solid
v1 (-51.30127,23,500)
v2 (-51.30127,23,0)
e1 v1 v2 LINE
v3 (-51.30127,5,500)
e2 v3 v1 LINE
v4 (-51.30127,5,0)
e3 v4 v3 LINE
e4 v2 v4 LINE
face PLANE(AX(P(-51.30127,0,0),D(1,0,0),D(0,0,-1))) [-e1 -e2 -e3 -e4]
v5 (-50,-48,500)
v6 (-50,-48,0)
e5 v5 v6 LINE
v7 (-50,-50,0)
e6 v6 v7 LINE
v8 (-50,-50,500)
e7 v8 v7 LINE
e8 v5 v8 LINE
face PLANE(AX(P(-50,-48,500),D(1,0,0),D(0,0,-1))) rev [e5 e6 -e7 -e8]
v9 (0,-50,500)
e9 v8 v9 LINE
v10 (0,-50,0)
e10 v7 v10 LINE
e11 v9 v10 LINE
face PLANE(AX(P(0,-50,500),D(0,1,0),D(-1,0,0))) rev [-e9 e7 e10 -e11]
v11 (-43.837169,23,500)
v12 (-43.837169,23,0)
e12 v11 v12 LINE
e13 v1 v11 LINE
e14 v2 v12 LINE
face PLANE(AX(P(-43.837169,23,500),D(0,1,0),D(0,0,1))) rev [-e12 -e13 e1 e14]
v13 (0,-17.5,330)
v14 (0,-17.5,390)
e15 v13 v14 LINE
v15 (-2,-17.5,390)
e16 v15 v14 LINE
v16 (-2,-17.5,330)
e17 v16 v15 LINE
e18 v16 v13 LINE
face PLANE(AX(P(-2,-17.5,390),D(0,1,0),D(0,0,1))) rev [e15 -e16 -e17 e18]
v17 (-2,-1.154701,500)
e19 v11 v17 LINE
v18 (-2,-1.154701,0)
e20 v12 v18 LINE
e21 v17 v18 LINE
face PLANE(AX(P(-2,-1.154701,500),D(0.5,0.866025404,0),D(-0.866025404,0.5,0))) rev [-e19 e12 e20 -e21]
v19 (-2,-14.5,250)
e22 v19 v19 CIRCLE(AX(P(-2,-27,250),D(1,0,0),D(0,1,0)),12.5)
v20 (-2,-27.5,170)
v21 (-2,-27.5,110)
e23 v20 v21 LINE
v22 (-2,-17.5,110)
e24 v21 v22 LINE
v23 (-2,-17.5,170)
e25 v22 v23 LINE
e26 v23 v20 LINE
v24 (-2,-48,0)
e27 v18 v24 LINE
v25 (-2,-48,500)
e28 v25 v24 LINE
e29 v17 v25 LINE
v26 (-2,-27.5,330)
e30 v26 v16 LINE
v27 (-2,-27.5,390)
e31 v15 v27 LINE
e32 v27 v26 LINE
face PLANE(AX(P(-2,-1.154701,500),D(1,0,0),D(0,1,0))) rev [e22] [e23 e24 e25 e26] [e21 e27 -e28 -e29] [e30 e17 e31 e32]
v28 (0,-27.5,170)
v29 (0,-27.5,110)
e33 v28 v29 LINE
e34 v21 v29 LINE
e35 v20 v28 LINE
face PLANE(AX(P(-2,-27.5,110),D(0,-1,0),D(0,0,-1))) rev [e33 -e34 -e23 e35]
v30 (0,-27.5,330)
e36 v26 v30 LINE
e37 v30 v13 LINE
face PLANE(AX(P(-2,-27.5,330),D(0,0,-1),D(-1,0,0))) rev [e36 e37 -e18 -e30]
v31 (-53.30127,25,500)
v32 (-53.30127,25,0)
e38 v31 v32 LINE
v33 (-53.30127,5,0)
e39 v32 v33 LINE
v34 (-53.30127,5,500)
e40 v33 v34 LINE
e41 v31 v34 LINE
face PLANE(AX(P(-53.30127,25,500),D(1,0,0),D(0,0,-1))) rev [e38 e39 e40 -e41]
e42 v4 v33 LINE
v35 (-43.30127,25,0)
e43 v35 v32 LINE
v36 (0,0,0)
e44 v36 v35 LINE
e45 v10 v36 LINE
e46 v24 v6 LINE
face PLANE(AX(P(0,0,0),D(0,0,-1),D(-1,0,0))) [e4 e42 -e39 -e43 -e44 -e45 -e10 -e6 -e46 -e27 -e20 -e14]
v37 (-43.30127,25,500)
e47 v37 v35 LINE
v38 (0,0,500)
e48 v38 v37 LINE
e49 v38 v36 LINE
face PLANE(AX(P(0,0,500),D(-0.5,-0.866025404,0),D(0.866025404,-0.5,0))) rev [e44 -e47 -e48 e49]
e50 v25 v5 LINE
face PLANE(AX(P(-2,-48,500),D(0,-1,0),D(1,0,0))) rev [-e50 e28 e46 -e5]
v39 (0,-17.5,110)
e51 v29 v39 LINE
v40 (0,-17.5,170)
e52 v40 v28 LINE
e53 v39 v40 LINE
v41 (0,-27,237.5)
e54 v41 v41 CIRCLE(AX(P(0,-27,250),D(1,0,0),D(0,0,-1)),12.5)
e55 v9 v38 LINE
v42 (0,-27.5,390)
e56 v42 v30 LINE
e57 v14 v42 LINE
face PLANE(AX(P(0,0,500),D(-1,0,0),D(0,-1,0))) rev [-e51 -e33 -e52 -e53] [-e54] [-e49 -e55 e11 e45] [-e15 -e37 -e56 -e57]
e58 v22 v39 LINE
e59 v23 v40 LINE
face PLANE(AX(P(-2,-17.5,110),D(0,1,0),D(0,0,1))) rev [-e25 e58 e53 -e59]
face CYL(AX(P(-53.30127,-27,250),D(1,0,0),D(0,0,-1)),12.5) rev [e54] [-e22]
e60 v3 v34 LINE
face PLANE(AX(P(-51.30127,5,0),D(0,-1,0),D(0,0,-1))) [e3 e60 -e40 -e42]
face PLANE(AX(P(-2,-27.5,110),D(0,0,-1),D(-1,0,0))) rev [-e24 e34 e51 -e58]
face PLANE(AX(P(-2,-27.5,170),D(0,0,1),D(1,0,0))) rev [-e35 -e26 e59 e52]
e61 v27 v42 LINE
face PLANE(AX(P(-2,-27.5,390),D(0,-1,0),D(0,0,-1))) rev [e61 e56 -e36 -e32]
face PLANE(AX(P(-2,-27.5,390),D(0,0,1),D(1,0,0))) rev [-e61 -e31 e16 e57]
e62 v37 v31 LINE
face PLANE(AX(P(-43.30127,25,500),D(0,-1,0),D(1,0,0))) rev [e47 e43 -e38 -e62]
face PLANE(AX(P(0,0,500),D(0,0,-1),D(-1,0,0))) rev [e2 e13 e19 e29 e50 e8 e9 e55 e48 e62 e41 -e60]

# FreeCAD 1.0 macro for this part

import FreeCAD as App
import Part
import Sketcher
from FreeCAD import Vector
Q = App.Units.Quantity


def add_polygon(sketch, points):
    """Adds a closed chain of lines whose ends are joined by coincident constraints."""
    first, n = sketch.GeometryCount, len(points)
    for a, b in zip(points, points[1:] + points[:1]):
        sketch.addGeometry(Part.LineSegment(App.Vector(*a, 0), App.Vector(*b, 0)), False)
    for i in range(n):
        sketch.addConstraint(Sketcher.Constraint("Coincident", first + i, 2, first + (i + 1) % n, 1))

doc = App.newDocument("Part")
params = doc.addObject("Spreadsheet::Sheet", "Params")
for row, (alias, value) in enumerate([
    ("sketch1_width", "10 mm"),
    ("sketch1_width2", "48 mm"),
    ("sketch1_width3", "50 mm"),
    ("sketch1_height", "2 mm"),
    ("sketch1_length", "50 mm"),
    ("pad1_length", "500 mm"),
    ("sketch2_diameter", "25 mm"),
    ("sketch3_width", "10 mm"),
    ("sketch3_height", "60 mm"),
    ("pocket2_length", "2 mm"),
    ("sketch4_width", "20 mm"),
    ("sketch4_height", "500 mm"),
    ("pad2_length", "2 mm"),
], start=1):
    params.set(f"A{row}", alias)
    params.set(f"B{row}", "=" + value)
    params.setAlias(f"B{row}", alias)

body = doc.addObject("PartDesign::Body", "Body")

# Sketch on XY plane
sketch1 = doc.addObject("Sketcher::SketchObject", "Sketch")
body.addObject(sketch1)
sketch1.AttachmentSupport = (doc.XY_Plane, [""])
sketch1.MapMode = "FlatFace"
add_polygon(sketch1, [(0, 0), (-43.30127, 25), (-53.30127, 25), (-53.30127, 23), (-43.837169, 23), (-2, -1.154701), (-2, -48), (-50, -48), (-50, -50), (0, -50)])  # lines 0-9
sketch1.addConstraint(Sketcher.Constraint("Horizontal", 1))
sketch1.addConstraint(Sketcher.Constraint("Vertical", 2))
sketch1.addConstraint(Sketcher.Constraint("Horizontal", 3))
sketch1.addConstraint(Sketcher.Constraint("Vertical", 5))
sketch1.addConstraint(Sketcher.Constraint("Horizontal", 6))
sketch1.addConstraint(Sketcher.Constraint("Vertical", 7))
sketch1.addConstraint(Sketcher.Constraint("Horizontal", 8))
sketch1.addConstraint(Sketcher.Constraint("Vertical", 9))
sketch1.addConstraint(Sketcher.Constraint("Coincident", 9, 2, -1, 1))
sketch1.addConstraint(Sketcher.Constraint("Parallel", 0, 4))
sketch1.addConstraint(Sketcher.Constraint("Equal", 2, 7))
sketch1.addConstraint(Sketcher.Constraint("Equal", 8, 9))
sketch1.addConstraint(Sketcher.Constraint("DistanceX", 1, 2, 1, 1, 10.0))
sketch1.addConstraint(Sketcher.Constraint("DistanceX", 6, 2, 6, 1, 48.0))
sketch1.addConstraint(Sketcher.Constraint("DistanceX", 8, 1, 8, 2, 50.0))
sketch1.addConstraint(Sketcher.Constraint("DistanceY", 2, 2, 2, 1, 2.0))
sketch1.addConstraint(Sketcher.Constraint("Angle", 0, Q("150 deg")))
sketch1.addConstraint(Sketcher.Constraint("Distance", 0, 50.0))
sketch1.addConstraint(Sketcher.Constraint("DistanceX", 3, 1, 3, 2, 9.464102))
sketch1.setExpression("Constraints[22]", "Params.sketch1_width")
sketch1.setExpression("Constraints[23]", "Params.sketch1_width2")
sketch1.setExpression("Constraints[24]", "Params.sketch1_width3")
sketch1.setExpression("Constraints[25]", "Params.sketch1_height")
sketch1.setExpression("Constraints[27]", "Params.sketch1_length")
pad1 = doc.addObject("PartDesign::Pad", "Pad")
body.addObject(pad1)
pad1.Profile = sketch1
pad1.setExpression("Length", "Params.pad1_length")

# Sketch on YZ plane
sketch2 = doc.addObject("Sketcher::SketchObject", "Sketch001")
body.addObject(sketch2)
sketch2.AttachmentSupport = (doc.YZ_Plane, [""])
sketch2.MapMode = "FlatFace"
sketch2.addGeometry(Part.Circle(Vector(-27, 250, 0), Vector(0, 0, 1), 12.5), False)
sketch2.addConstraint(Sketcher.Constraint("Diameter", 0, 25.0))
sketch2.addConstraint(Sketcher.Constraint("DistanceX", 0, 3, -1, 1, 27.0))
sketch2.addConstraint(Sketcher.Constraint("DistanceY", -1, 1, 0, 3, 250.0))
sketch2.setExpression("Constraints[0]", "Params.sketch2_diameter")
pocket1 = doc.addObject("PartDesign::Pocket", "Pocket")
body.addObject(pocket1)
pocket1.Profile = sketch2
pocket1.Type = "ThroughAll"

# Sketch on YZ plane
sketch3 = doc.addObject("Sketcher::SketchObject", "Sketch002")
body.addObject(sketch3)
sketch3.AttachmentSupport = (doc.YZ_Plane, [""])
sketch3.MapMode = "FlatFace"
add_polygon(sketch3, [(-17.5, 170), (-27.5, 170), (-27.5, 110), (-17.5, 110)])  # lines 0-3
add_polygon(sketch3, [(-17.5, 390), (-27.5, 390), (-27.5, 330), (-17.5, 330)])  # lines 4-7
sketch3.addConstraint(Sketcher.Constraint("Horizontal", 0))
sketch3.addConstraint(Sketcher.Constraint("Vertical", 1))
sketch3.addConstraint(Sketcher.Constraint("Horizontal", 2))
sketch3.addConstraint(Sketcher.Constraint("Vertical", 3))
sketch3.addConstraint(Sketcher.Constraint("Horizontal", 4))
sketch3.addConstraint(Sketcher.Constraint("Vertical", 5))
sketch3.addConstraint(Sketcher.Constraint("Horizontal", 6))
sketch3.addConstraint(Sketcher.Constraint("Vertical", 7))
sketch3.addConstraint(Sketcher.Constraint("Vertical", 1, 2, 4, 2))
sketch3.addConstraint(Sketcher.Constraint("Vertical", 3, 2, 6, 2))
sketch3.addConstraint(Sketcher.Constraint("Equal", 3, 5))
sketch3.addConstraint(Sketcher.Constraint("DistanceX", 0, 2, 0, 1, 10.0))
sketch3.addConstraint(Sketcher.Constraint("DistanceY", 1, 2, 1, 1, 60.0))
sketch3.addConstraint(Sketcher.Constraint("DistanceY", -1, 1, 0, 2, 170.0))
sketch3.addConstraint(Sketcher.Constraint("DistanceY", -1, 1, 4, 2, 390.0))
sketch3.addConstraint(Sketcher.Constraint("DistanceX", 0, 2, -1, 1, 27.5))
sketch3.setExpression("Constraints[19]", "Params.sketch3_width")
sketch3.setExpression("Constraints[20]", "Params.sketch3_height")
pocket2 = doc.addObject("PartDesign::Pocket", "Pocket001")
body.addObject(pocket2)
pocket2.Profile = sketch3
pocket2.setExpression("Length", "Params.pocket2_length")

# Sketch on YZ plane
sketch4 = doc.addObject("Sketcher::SketchObject", "Sketch003")
body.addObject(sketch4)
sketch4.AttachmentSupport = (doc.YZ_Plane, [""])
sketch4.MapMode = "FlatFace"
sketch4.AttachmentOffset = App.Placement(Vector(0, 0, -53.30127), App.Rotation())
add_polygon(sketch4, [(25, 0), (5, 0), (5, 500), (25, 500)])  # lines 0-3
sketch4.addConstraint(Sketcher.Constraint("Horizontal", 0))
sketch4.addConstraint(Sketcher.Constraint("Vertical", 1))
sketch4.addConstraint(Sketcher.Constraint("Horizontal", 2))
sketch4.addConstraint(Sketcher.Constraint("Vertical", 3))
sketch4.addConstraint(Sketcher.Constraint("PointOnObject", 0, 2, -1))
sketch4.addConstraint(Sketcher.Constraint("DistanceX", 0, 2, 0, 1, 20.0))
sketch4.addConstraint(Sketcher.Constraint("DistanceY", 1, 1, 1, 2, 500.0))
sketch4.addConstraint(Sketcher.Constraint("DistanceX", -1, 1, 0, 2, 5.0))
sketch4.setExpression("Constraints[9]", "Params.sketch4_width")
sketch4.setExpression("Constraints[10]", "Params.sketch4_height")
pad2 = doc.addObject("PartDesign::Pad", "Pad001")
body.addObject(pad2)
pad2.Profile = sketch4
pad2.setExpression("Length", "Params.pad2_length")

doc.recompute()
